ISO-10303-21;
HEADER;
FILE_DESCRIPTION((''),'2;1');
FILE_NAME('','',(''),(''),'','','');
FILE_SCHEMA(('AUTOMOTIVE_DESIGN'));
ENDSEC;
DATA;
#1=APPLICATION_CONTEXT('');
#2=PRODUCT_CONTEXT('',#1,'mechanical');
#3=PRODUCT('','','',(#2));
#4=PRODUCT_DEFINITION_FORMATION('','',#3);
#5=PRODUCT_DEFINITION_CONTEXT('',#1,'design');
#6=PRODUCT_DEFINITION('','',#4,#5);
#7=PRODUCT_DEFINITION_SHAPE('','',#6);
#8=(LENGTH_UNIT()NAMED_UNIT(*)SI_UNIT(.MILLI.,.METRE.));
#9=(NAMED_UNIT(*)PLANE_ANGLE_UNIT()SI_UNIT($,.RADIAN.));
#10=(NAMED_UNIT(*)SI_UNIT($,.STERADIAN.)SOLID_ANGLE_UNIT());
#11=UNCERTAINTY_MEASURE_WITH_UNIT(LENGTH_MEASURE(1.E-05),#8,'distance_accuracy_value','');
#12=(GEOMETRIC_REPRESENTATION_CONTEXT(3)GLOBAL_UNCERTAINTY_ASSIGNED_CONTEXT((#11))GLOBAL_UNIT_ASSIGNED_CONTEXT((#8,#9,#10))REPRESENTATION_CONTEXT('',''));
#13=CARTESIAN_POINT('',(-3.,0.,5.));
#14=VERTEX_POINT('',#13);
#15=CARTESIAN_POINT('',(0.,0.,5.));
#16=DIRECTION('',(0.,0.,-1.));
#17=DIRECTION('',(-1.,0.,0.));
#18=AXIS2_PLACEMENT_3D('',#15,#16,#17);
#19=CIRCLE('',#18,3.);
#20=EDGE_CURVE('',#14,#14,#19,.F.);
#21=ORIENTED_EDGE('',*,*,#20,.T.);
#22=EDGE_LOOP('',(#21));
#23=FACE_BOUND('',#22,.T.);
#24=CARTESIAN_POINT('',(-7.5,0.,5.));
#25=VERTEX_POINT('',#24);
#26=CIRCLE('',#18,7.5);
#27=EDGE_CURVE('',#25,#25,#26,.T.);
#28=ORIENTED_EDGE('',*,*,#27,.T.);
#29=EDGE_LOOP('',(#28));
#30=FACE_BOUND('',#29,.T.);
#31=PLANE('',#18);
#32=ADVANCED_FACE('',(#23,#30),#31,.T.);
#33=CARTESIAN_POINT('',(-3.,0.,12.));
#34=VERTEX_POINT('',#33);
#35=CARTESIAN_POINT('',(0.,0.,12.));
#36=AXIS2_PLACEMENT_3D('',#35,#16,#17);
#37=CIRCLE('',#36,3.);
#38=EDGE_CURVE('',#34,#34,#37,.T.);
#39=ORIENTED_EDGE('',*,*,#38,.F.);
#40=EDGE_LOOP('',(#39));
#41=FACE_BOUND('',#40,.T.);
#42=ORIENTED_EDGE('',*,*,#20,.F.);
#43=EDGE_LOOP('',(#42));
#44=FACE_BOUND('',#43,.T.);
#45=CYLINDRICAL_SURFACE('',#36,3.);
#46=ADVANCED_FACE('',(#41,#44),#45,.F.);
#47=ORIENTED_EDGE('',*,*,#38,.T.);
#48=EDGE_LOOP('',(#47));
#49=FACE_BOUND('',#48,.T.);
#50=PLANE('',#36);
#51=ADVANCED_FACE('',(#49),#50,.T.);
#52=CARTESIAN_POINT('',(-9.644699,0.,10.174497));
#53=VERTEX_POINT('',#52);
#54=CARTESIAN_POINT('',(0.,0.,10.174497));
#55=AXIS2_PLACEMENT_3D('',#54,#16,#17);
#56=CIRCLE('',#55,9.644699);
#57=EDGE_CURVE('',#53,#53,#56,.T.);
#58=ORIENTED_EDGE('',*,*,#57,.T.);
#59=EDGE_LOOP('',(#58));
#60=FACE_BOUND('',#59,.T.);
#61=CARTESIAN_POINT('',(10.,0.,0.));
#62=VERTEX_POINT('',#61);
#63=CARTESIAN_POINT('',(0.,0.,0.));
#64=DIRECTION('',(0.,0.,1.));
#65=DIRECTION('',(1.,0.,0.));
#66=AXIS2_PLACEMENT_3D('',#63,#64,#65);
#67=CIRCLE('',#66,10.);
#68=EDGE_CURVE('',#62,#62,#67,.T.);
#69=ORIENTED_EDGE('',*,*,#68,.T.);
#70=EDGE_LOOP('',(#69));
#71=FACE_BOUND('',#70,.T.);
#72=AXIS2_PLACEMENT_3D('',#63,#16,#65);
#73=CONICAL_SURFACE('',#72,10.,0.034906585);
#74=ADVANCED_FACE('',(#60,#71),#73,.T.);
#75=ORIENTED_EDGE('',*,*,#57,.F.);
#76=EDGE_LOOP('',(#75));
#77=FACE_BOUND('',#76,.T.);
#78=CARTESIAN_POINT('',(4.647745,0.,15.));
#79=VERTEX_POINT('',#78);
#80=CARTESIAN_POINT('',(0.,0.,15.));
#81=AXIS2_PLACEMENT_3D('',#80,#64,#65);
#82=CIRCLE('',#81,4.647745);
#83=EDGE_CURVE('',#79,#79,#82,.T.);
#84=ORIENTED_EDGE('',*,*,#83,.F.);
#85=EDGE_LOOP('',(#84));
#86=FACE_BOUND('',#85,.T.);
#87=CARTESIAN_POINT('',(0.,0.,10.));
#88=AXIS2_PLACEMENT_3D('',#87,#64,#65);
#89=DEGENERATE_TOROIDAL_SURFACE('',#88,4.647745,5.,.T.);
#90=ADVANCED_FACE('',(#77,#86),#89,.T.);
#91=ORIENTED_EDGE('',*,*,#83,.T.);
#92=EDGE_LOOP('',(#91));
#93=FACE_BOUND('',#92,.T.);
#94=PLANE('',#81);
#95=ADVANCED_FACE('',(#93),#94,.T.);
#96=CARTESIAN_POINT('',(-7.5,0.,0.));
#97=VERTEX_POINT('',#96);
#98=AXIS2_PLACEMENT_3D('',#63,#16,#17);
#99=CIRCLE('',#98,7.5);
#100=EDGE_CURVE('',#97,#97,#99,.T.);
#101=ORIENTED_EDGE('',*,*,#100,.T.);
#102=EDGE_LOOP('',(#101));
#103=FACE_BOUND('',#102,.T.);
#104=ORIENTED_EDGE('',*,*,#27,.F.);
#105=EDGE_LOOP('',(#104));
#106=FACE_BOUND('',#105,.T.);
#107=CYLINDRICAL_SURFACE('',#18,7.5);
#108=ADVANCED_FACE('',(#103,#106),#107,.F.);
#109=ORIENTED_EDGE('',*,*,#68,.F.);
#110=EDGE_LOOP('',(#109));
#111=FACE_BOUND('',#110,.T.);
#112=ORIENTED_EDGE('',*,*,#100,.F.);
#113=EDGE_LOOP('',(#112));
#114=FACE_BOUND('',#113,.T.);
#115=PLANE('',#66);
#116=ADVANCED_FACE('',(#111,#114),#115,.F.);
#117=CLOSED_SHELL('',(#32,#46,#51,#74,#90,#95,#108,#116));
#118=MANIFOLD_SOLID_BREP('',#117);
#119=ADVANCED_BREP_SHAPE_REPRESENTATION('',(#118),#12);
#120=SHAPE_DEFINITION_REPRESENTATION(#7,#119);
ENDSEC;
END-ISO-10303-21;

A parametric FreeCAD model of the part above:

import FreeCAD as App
import Part
import Sketcher
from FreeCAD import Vector


def edges_at(feature, points):
    """Names of the edges that pass closest to the given points."""
    edges = feature.Shape.Edges
    near = lambda p: min(range(len(edges)), key=lambda i: edges[i].distToShape(Part.Vertex(*p))[0])
    return sorted({f"Edge{near(p) + 1}" for p in points})

doc = App.newDocument("Part")
body = doc.addObject("PartDesign::Body", "Body")

sketch1 = body.newObject("Sketcher::SketchObject", "Sketch")
sketch1.AttachmentSupport = (doc.getObject("XY_Plane"), [""])
sketch1.MapMode = "FlatFace"
sketch1.addGeometry(Part.Circle(Vector(0, 0, 0), Vector(0, 0, 1), 10), False)
sketch1.addConstraint([
    Sketcher.Constraint("Coincident", 0, 3, -1, 1),
    Sketcher.Constraint("Diameter", 0, 20.0),
])
pad1 = body.newObject("PartDesign::Pad", "Pad")
pad1.Profile = sketch1
pad1.Length = 15
pad1.TaperAngle = -2
doc.recompute()

fillet = body.newObject("PartDesign::Fillet", "Fillet")
fillet.Base = (pad1, edges_at(pad1, [(-9.476, 0, 15)]))
fillet.Radius = 5

sketch2 = body.newObject("Sketcher::SketchObject", "Sketch001")
sketch2.AttachmentSupport = (doc.getObject("XY_Plane"), [""])
sketch2.MapMode = "FlatFace"
sketch2.addGeometry(Part.Circle(Vector(0, 0, 0), Vector(0, 0, 1), 3), False)
sketch2.addConstraint([
    Sketcher.Constraint("Coincident", 0, 3, -1, 1),
    Sketcher.Constraint("Diameter", 0, 6.0),
])
pocket1 = body.newObject("PartDesign::Pocket", "Pocket")
pocket1.Profile = sketch2
pocket1.Length = 12
pocket1.Reversed = True

sketch3 = body.newObject("Sketcher::SketchObject", "Sketch002")
sketch3.AttachmentSupport = (doc.getObject("XY_Plane"), [""])
sketch3.MapMode = "FlatFace"
sketch3.addGeometry(Part.Circle(Vector(0, 0, 0), Vector(0, 0, 1), 8), False)
sketch3.addConstraint([
    Sketcher.Constraint("Coincident", 0, 3, -1, 1),
    Sketcher.Constraint("Diameter", 0, 15.0),
])
pocket2 = body.newObject("PartDesign::Pocket", "Pocket001")
pocket2.Profile = sketch3
pocket2.Length = 5
pocket2.Reversed = True

doc.recompute()
